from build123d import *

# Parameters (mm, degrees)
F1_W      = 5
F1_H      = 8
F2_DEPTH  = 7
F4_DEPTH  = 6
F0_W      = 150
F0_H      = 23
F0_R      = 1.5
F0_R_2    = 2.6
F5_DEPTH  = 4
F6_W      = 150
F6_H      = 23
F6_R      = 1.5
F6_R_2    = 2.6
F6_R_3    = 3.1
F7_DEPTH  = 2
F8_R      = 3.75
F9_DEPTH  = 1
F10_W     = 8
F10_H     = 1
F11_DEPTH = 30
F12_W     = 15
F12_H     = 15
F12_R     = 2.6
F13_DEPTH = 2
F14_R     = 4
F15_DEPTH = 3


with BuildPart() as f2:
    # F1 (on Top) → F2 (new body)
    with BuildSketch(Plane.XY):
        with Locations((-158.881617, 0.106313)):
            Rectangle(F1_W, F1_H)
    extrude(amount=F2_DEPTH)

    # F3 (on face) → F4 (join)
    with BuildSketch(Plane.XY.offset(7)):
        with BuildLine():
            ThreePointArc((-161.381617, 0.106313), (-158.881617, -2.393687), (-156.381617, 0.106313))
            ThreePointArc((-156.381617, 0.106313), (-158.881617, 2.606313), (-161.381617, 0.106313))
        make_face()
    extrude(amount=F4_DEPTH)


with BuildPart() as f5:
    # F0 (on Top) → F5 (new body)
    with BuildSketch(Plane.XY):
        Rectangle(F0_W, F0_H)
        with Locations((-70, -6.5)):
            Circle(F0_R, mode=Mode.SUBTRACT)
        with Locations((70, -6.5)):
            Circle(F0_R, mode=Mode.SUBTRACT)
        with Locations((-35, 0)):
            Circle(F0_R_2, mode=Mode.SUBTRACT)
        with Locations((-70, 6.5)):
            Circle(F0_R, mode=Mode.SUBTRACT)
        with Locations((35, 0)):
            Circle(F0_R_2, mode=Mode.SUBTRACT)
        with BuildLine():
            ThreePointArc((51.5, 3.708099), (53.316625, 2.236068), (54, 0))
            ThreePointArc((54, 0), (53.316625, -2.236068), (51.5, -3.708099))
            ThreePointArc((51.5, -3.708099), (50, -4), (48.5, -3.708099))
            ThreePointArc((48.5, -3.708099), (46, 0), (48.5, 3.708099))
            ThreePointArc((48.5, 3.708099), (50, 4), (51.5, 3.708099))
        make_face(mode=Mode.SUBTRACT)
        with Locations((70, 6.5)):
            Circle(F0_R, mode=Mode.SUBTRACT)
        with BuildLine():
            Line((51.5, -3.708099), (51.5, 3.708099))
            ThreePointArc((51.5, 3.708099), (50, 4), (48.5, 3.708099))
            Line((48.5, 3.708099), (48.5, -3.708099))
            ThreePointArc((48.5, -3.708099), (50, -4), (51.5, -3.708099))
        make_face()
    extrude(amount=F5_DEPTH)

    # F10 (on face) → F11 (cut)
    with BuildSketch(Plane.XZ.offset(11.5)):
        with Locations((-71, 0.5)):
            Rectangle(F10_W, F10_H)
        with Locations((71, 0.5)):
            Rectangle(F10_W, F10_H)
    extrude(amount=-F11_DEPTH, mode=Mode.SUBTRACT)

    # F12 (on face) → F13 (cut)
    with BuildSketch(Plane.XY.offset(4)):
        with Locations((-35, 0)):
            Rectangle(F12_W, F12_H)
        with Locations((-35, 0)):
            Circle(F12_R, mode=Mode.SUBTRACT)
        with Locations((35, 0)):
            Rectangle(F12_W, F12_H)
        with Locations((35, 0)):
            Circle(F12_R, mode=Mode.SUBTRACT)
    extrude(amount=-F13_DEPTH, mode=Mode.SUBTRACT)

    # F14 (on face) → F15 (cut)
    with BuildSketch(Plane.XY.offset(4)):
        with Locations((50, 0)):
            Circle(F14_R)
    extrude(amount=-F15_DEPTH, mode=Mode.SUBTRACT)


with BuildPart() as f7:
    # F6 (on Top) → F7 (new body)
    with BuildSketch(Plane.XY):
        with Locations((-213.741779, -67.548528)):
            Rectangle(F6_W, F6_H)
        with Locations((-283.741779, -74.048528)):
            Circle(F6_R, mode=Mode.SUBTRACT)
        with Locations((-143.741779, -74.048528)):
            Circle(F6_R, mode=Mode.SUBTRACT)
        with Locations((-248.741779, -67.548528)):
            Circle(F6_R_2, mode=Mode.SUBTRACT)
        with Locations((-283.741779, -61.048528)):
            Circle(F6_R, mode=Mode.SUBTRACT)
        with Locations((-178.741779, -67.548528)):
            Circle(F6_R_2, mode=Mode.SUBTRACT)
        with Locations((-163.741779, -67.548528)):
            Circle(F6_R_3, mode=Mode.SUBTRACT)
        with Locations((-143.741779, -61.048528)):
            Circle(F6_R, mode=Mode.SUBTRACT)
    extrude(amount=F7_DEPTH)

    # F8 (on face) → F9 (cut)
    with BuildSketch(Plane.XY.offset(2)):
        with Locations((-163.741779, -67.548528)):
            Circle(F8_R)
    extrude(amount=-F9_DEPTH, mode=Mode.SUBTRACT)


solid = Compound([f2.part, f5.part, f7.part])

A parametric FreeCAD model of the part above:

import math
import FreeCAD as App
import Part
import Sketcher

V = App.Vector
Q = App.Units.Quantity


def add_polygon(sketch, points):
    """Adds a closed chain of lines whose ends are joined by coincident constraints."""
    first, n = sketch.GeometryCount, len(points)
    for a, b in zip(points, points[1:] + points[:1]):
        sketch.addGeometry(Part.LineSegment(App.Vector(*a, 0), App.Vector(*b, 0)), False)
    for i in range(n):
        sketch.addConstraint(Sketcher.Constraint("Coincident", first + i, 2, first + (i + 1) % n, 1))

doc = App.newDocument("Part")
body = doc.addObject("PartDesign::Body", "Body")

# Sketch on XY plane
sketch1 = body.newObject("Sketcher::SketchObject", "Sketch")
sketch1.AttachmentSupport = (doc.getObject("XY_Plane"), [""])
sketch1.MapMode = "FlatFace"
add_polygon(sketch1, [(-161, 4), (-161, -4), (-156, -4), (-156, 4)])  # lines 0-3
sketch1.addConstraint(Sketcher.Constraint("Vertical", 0))
sketch1.addConstraint(Sketcher.Constraint("Horizontal", 1))
sketch1.addConstraint(Sketcher.Constraint("Vertical", 2))
sketch1.addConstraint(Sketcher.Constraint("Horizontal", 3))
sketch1.addConstraint(Sketcher.Constraint("DistanceX", 1, 1, 1, 2, Q("5 mm")))
sketch1.addConstraint(Sketcher.Constraint("DistanceY", 0, 2, 0, 1, Q("8 mm")))
sketch1.addConstraint(Sketcher.Constraint("DistanceX", 0, 2, -1, 1, Q("161.381617 mm")))
sketch1.addConstraint(Sketcher.Constraint("DistanceY", 0, 2, -1, 1, Q("3.893687 mm")))
pad1 = body.newObject("PartDesign::Pad", "Pad")
pad1.Profile = sketch1
pad1.Length = 7

# Sketch on XY plane
sketch2 = body.newObject("Sketcher::SketchObject", "Sketch001")
sketch2.AttachmentSupport = (doc.getObject("XY_Plane"), [""])
sketch2.MapMode = "FlatFace"
sketch2.AttachmentOffset = App.Placement(V(0, 0, 7), App.Rotation())
sketch2.addGeometry(Part.Circle(V(-158.9, 0.1, 0), V(0, 0, 1), 2.5), False)
sketch2.addConstraint(Sketcher.Constraint("Diameter", 0, Q("5 mm")))
sketch2.addConstraint(Sketcher.Constraint("DistanceX", 0, 3, -1, 1, Q("158.881617 mm")))
sketch2.addConstraint(Sketcher.Constraint("DistanceY", -1, 1, 0, 3, Q("0.106313 mm")))
pad2 = body.newObject("PartDesign::Pad", "Pad001")
pad2.Profile = sketch2
pad2.Length = 6
body2 = doc.addObject("PartDesign::Body", "Body001")

# Sketch on XY plane
sketch3 = body2.newObject("Sketcher::SketchObject", "Sketch002")
sketch3.AttachmentSupport = (doc.getObject("XY_Plane001"), [""])
sketch3.MapMode = "FlatFace"
add_polygon(sketch3, [(-75, 11.5), (-75, -11.5), (75, -11.5), (75, 11.5)])  # lines 0-3
sketch3.addGeometry(Part.Circle(V(-70, -6.5, 0), V(0, 0, 1), 1.5), False)  # 4
sketch3.addGeometry(Part.Circle(V(70, -6.5, 0), V(0, 0, 1), 1.5), False)  # 5
sketch3.addGeometry(Part.Circle(V(-35, 0, 0), V(0, 0, 1), 2.6), False)  # 6
sketch3.addGeometry(Part.Circle(V(-70, 6.5, 0), V(0, 0, 1), 1.5), False)  # 7
sketch3.addGeometry(Part.Circle(V(35, 0, 0), V(0, 0, 1), 2.6), False)  # 8
sketch3.addGeometry(Part.ArcOfCircle(Part.Circle(V(50, 0, 0), V(0, 0, 1), 4), math.radians(112), math.radians(248)), False)  # 9
sketch3.addGeometry(Part.LineSegment(V(48.5, 3.7, 0), V(48.5, -3.7, 0)), False)  # 10
sketch3.addGeometry(Part.ArcOfCircle(Part.Circle(V(50, 0, 0), V(0, 0, 1), 4), math.radians(0), math.radians(68)), False)  # 11
sketch3.addGeometry(Part.ArcOfCircle(Part.Circle(V(50, 0, 0), V(0, 0, 1), 4), math.radians(-68), math.radians(0)), False)  # 12
sketch3.addGeometry(Part.LineSegment(V(51.5, -3.7, 0), V(51.5, 3.7, 0)), False)  # 13
sketch3.addGeometry(Part.Circle(V(70, 6.5, 0), V(0, 0, 1), 1.5), False)  # 14
sketch3.addConstraint(Sketcher.Constraint("Coincident", 9, 1, 10, 1))
sketch3.addConstraint(Sketcher.Constraint("Coincident", 10, 2, 9, 2))
sketch3.addConstraint(Sketcher.Constraint("Tangent", 11, 1, 12, 2))
sketch3.addConstraint(Sketcher.Constraint("Coincident", 12, 1, 13, 1))
sketch3.addConstraint(Sketcher.Constraint("Coincident", 13, 2, 11, 2))
sketch3.addConstraint(Sketcher.Constraint("Vertical", 0))
sketch3.addConstraint(Sketcher.Constraint("Horizontal", 1))
sketch3.addConstraint(Sketcher.Constraint("Vertical", 2))
sketch3.addConstraint(Sketcher.Constraint("Horizontal", 3))
sketch3.addConstraint(Sketcher.Constraint("Vertical", 10))
sketch3.addConstraint(Sketcher.Constraint("Vertical", 13))
sketch3.addConstraint(Sketcher.Constraint("Coincident", 11, 3, 9, 3))
sketch3.addConstraint(Sketcher.Constraint("Equal", 4, 5))
sketch3.addConstraint(Sketcher.Constraint("Equal", 5, 7))
sketch3.addConstraint(Sketcher.Constraint("Equal", 6, 8))
sketch3.addConstraint(Sketcher.Constraint("Equal", 9, 11))
sketch3.addConstraint(Sketcher.Constraint("Equal", 11, 12))
sketch3.addConstraint(Sketcher.Constraint("Equal", 7, 14))
sketch3.addConstraint(Sketcher.Constraint("Symmetric", 5, 3, 7, 3, -1, 1))
sketch3.addConstraint(Sketcher.Constraint("Symmetric", 6, 3, 8, 3, -1, 1))
sketch3.addConstraint(Sketcher.Constraint("Symmetric", 4, 3, 14, 3, -1, 1))
sketch3.addConstraint(Sketcher.Constraint("Symmetric", 0, 2, 2, 2, -1, 1))
sketch3.addConstraint(Sketcher.Constraint("Symmetric", 4, 3, 5, 3, -2))
sketch3.addConstraint(Sketcher.Constraint("PointOnObject", 6, 3, -1))
sketch3.addConstraint(Sketcher.Constraint("PointOnObject", 9, 3, -1))
sketch3.addConstraint(Sketcher.Constraint("PointOnObject", 11, 1, -1))
sketch3.addConstraint(Sketcher.Constraint("Horizontal", 10, 2, 12, 1))
sketch3.addConstraint(Sketcher.Constraint("Diameter", 4, Q("3 mm")))
sketch3.addConstraint(Sketcher.Constraint("Radius", 9, Q("4 mm")))
sketch3.addConstraint(Sketcher.Constraint("Diameter", 6, Q("5.2 mm")))
sketch3.addConstraint(Sketcher.Constraint("DistanceX", 1, 1, 1, 2, Q("150 mm")))
sketch3.addConstraint(Sketcher.Constraint("DistanceY", 0, 2, 0, 1, Q("23 mm")))
sketch3.addConstraint(Sketcher.Constraint("DistanceX", 4, 3, -1, 1, Q("70 mm")))
sketch3.addConstraint(Sketcher.Constraint("DistanceX", 6, 3, -1, 1, Q("35 mm")))
sketch3.addConstraint(Sketcher.Constraint("DistanceX", -1, 1, 9, 3, Q("50 mm")))
sketch3.addConstraint(Sketcher.Constraint("DistanceY", 4, 3, 7, 3, Q("13 mm")))
sketch3.addConstraint(Sketcher.Constraint("DistanceX", 10, 2, 12, 1, Q("3 mm")))
pad3 = body2.newObject("PartDesign::Pad", "Pad002")
pad3.Profile = sketch3
pad3.Length = 4

# Sketch on XZ plane
sketch4 = body2.newObject("Sketcher::SketchObject", "Sketch003")
sketch4.AttachmentSupport = (doc.getObject("XZ_Plane001"), [""])
sketch4.MapMode = "FlatFace"
sketch4.AttachmentOffset = App.Placement(V(0, 0, 11.5), App.Rotation())
add_polygon(sketch4, [(-75, 1), (-75, 0), (-67, 0), (-67, 1)])  # lines 0-3
add_polygon(sketch4, [(67, 1), (67, 0), (75, 0), (75, 1)])  # lines 4-7
sketch4.addConstraint(Sketcher.Constraint("Vertical", 0))
sketch4.addConstraint(Sketcher.Constraint("Horizontal", 1))
sketch4.addConstraint(Sketcher.Constraint("Vertical", 2))
sketch4.addConstraint(Sketcher.Constraint("Horizontal", 3))
sketch4.addConstraint(Sketcher.Constraint("Vertical", 4))
sketch4.addConstraint(Sketcher.Constraint("Horizontal", 5))
sketch4.addConstraint(Sketcher.Constraint("Vertical", 6))
sketch4.addConstraint(Sketcher.Constraint("Horizontal", 7))
sketch4.addConstraint(Sketcher.Constraint("Symmetric", 1, 2, 4, 2, -1, 1))
sketch4.addConstraint(Sketcher.Constraint("Symmetric", 0, 2, 5, 2, -2))
sketch4.addConstraint(Sketcher.Constraint("Horizontal", 3, 2, 6, 2))
sketch4.addConstraint(Sketcher.Constraint("DistanceX", 1, 1, 1, 2, Q("8 mm")))
sketch4.addConstraint(Sketcher.Constraint("DistanceY", 0, 2, 0, 1, Q("1 mm")))
sketch4.addConstraint(Sketcher.Constraint("DistanceX", 0, 2, -1, 1, Q("75 mm")))
pocket1 = body2.newObject("PartDesign::Pocket", "Pocket")
pocket1.Profile = sketch4
pocket1.Length = 30

# Sketch on XY plane
sketch5 = body2.newObject("Sketcher::SketchObject", "Sketch004")
sketch5.AttachmentSupport = (doc.getObject("XY_Plane001"), [""])
sketch5.MapMode = "FlatFace"
sketch5.AttachmentOffset = App.Placement(V(0, 0, 4), App.Rotation())
add_polygon(sketch5, [(-42.5, 7.5), (-42.5, -7.5), (-27.5, -7.5), (-27.5, 7.5)])  # lines 0-3
sketch5.addGeometry(Part.Circle(V(-35, 0, 0), V(0, 0, 1), 2.6), False)  # 4
add_polygon(sketch5, [(27.5, 7.5), (27.5, -7.5), (42.5, -7.5), (42.5, 7.5)])  # lines 5-8
sketch5.addGeometry(Part.Circle(V(35, 0, 0), V(0, 0, 1), 2.6), False)  # 9
sketch5.addConstraint(Sketcher.Constraint("Vertical", 0))
sketch5.addConstraint(Sketcher.Constraint("Horizontal", 1))
sketch5.addConstraint(Sketcher.Constraint("Vertical", 2))
sketch5.addConstraint(Sketcher.Constraint("Horizontal", 3))
sketch5.addConstraint(Sketcher.Constraint("Vertical", 5))
sketch5.addConstraint(Sketcher.Constraint("Horizontal", 6))
sketch5.addConstraint(Sketcher.Constraint("Vertical", 7))
sketch5.addConstraint(Sketcher.Constraint("Horizontal", 8))
sketch5.addConstraint(Sketcher.Constraint("Equal", 4, 9))
sketch5.addConstraint(Sketcher.Constraint("Symmetric", 4, 3, 9, 3, -1, 1))
sketch5.addConstraint(Sketcher.Constraint("Symmetric", 2, 2, 5, 2, -1, 1))
sketch5.addConstraint(Sketcher.Constraint("Symmetric", 0, 2, 7, 2, -1, 1))
sketch5.addConstraint(Sketcher.Constraint("PointOnObject", 4, 3, -1))
sketch5.addConstraint(Sketcher.Constraint("Horizontal", 1, 2, 5, 2))
sketch5.addConstraint(Sketcher.Constraint("Equal", 8, 0))
sketch5.addConstraint(Sketcher.Constraint("Diameter", 4, Q("5.2 mm")))
sketch5.addConstraint(Sketcher.Constraint("DistanceX", 1, 1, 1, 2, Q("15 mm")))
sketch5.addConstraint(Sketcher.Constraint("DistanceX", 4, 3, -1, 1, Q("35 mm")))
sketch5.addConstraint(Sketcher.Constraint("DistanceX", 1, 2, 5, 2, Q("55 mm")))
pocket2 = body2.newObject("PartDesign::Pocket", "Pocket001")
pocket2.Profile = sketch5
pocket2.Length = 2

# Sketch on XY plane
sketch6 = body2.newObject("Sketcher::SketchObject", "Sketch005")
sketch6.AttachmentSupport = (doc.getObject("XY_Plane001"), [""])
sketch6.MapMode = "FlatFace"
sketch6.AttachmentOffset = App.Placement(V(0, 0, 4), App.Rotation())
sketch6.addGeometry(Part.Circle(V(50, 0, 0), V(0, 0, 1), 4), False)
sketch6.addConstraint(Sketcher.Constraint("PointOnObject", 0, 3, -1))
sketch6.addConstraint(Sketcher.Constraint("Diameter", 0, Q("8 mm")))
sketch6.addConstraint(Sketcher.Constraint("DistanceX", -1, 1, 0, 3, Q("50 mm")))
pocket3 = body2.newObject("PartDesign::Pocket", "Pocket002")
pocket3.Profile = sketch6
pocket3.Length = 3
body3 = doc.addObject("PartDesign::Body", "Body002")

# Sketch on XY plane
sketch7 = body3.newObject("Sketcher::SketchObject", "Sketch006")
sketch7.AttachmentSupport = (doc.getObject("XY_Plane002"), [""])
sketch7.MapMode = "FlatFace"
add_polygon(sketch7, [(-288.7, -56), (-288.7, -79), (-138.7, -79), (-138.7, -56)])  # lines 0-3
sketch7.addGeometry(Part.Circle(V(-283.7, -74, 0), V(0, 0, 1), 1.5), False)  # 4
sketch7.addGeometry(Part.Circle(V(-248.7, -67.5, 0), V(0, 0, 1), 2.6), False)  # 5
sketch7.addGeometry(Part.Circle(V(-143.7, -74, 0), V(0, 0, 1), 1.5), False)  # 6
sketch7.addGeometry(Part.Circle(V(-178.7, -67.5, 0), V(0, 0, 1), 2.6), False)  # 7
sketch7.addGeometry(Part.Circle(V(-163.7, -67.5, 0), V(0, 0, 1), 3.1), False)  # 8
sketch7.addGeometry(Part.Circle(V(-283.7, -61, 0), V(0, 0, 1), 1.5), False)  # 9
sketch7.addGeometry(Part.Circle(V(-143.7, -61, 0), V(0, 0, 1), 1.5), False)  # 10
sketch7.addConstraint(Sketcher.Constraint("Vertical", 0))
sketch7.addConstraint(Sketcher.Constraint("Horizontal", 1))
sketch7.addConstraint(Sketcher.Constraint("Vertical", 2))
sketch7.addConstraint(Sketcher.Constraint("Horizontal", 3))
sketch7.addConstraint(Sketcher.Constraint("Equal", 4, 6))
sketch7.addConstraint(Sketcher.Constraint("Equal", 5, 7))
sketch7.addConstraint(Sketcher.Constraint("Equal", 6, 9))
sketch7.addConstraint(Sketcher.Constraint("Equal", 9, 10))
sketch7.addConstraint(Sketcher.Constraint("Horizontal", 4, 3, 6, 3))
sketch7.addConstraint(Sketcher.Constraint("Horizontal", 5, 3, 7, 3))
sketch7.addConstraint(Sketcher.Constraint("Horizontal", 7, 3, 8, 3))
sketch7.addConstraint(Sketcher.Constraint("Horizontal", 9, 3, 10, 3))
sketch7.addConstraint(Sketcher.Constraint("Vertical", 4, 3, 9, 3))
sketch7.addConstraint(Sketcher.Constraint("Vertical", 6, 3, 10, 3))
sketch7.addConstraint(Sketcher.Constraint("Diameter", 4, Q("3 mm")))
sketch7.addConstraint(Sketcher.Constraint("Diameter", 5, Q("5.2 mm")))
sketch7.addConstraint(Sketcher.Constraint("Diameter", 8, Q("6.2 mm")))
sketch7.addConstraint(Sketcher.Constraint("DistanceX", 1, 1, 1, 2, Q("150 mm")))
sketch7.addConstraint(Sketcher.Constraint("DistanceY", 0, 2, 0, 1, Q("23 mm")))
sketch7.addConstraint(Sketcher.Constraint("DistanceX", 4, 3, 5, 3, Q("35 mm")))
sketch7.addConstraint(Sketcher.Constraint("DistanceX", 5, 3, 6, 3, Q("105 mm")))
sketch7.addConstraint(Sketcher.Constraint("DistanceX", 7, 3, 6, 3, Q("35 mm")))
sketch7.addConstraint(Sketcher.Constraint("DistanceX", 7, 3, 8, 3, Q("15 mm")))
sketch7.addConstraint(Sketcher.Constraint("DistanceY", 4, 3, 9, 3, Q("13 mm")))
sketch7.addConstraint(Sketcher.Constraint("DistanceX", 0, 2, 4, 3, Q("5 mm")))
sketch7.addConstraint(Sketcher.Constraint("DistanceY", 0, 2, 4, 3, Q("5 mm")))
sketch7.addConstraint(Sketcher.Constraint("DistanceY", 4, 3, 5, 3, Q("6.5 mm")))
sketch7.addConstraint(Sketcher.Constraint("DistanceX", 4, 3, -1, 1, Q("283.741779 mm")))
sketch7.addConstraint(Sketcher.Constraint("DistanceY", 4, 3, -1, 1, Q("74.048528 mm")))
pad4 = body3.newObject("PartDesign::Pad", "Pad003")
pad4.Profile = sketch7
pad4.Length = 2

# Sketch on XY plane
sketch8 = body3.newObject("Sketcher::SketchObject", "Sketch007")
sketch8.AttachmentSupport = (doc.getObject("XY_Plane002"), [""])
sketch8.MapMode = "FlatFace"
sketch8.AttachmentOffset = App.Placement(V(0, 0, 2), App.Rotation())
sketch8.addGeometry(Part.Circle(V(-163.7, -67.5, 0), V(0, 0, 1), 3.8), False)
sketch8.addConstraint(Sketcher.Constraint("Diameter", 0, Q("7.5 mm")))
sketch8.addConstraint(Sketcher.Constraint("DistanceX", 0, 3, -1, 1, Q("163.741779 mm")))
sketch8.addConstraint(Sketcher.Constraint("DistanceY", 0, 3, -1, 1, Q("67.548528 mm")))
pocket4 = body3.newObject("PartDesign::Pocket", "Pocket003")
pocket4.Profile = sketch8
pocket4.Length = 1

doc.recompute()
